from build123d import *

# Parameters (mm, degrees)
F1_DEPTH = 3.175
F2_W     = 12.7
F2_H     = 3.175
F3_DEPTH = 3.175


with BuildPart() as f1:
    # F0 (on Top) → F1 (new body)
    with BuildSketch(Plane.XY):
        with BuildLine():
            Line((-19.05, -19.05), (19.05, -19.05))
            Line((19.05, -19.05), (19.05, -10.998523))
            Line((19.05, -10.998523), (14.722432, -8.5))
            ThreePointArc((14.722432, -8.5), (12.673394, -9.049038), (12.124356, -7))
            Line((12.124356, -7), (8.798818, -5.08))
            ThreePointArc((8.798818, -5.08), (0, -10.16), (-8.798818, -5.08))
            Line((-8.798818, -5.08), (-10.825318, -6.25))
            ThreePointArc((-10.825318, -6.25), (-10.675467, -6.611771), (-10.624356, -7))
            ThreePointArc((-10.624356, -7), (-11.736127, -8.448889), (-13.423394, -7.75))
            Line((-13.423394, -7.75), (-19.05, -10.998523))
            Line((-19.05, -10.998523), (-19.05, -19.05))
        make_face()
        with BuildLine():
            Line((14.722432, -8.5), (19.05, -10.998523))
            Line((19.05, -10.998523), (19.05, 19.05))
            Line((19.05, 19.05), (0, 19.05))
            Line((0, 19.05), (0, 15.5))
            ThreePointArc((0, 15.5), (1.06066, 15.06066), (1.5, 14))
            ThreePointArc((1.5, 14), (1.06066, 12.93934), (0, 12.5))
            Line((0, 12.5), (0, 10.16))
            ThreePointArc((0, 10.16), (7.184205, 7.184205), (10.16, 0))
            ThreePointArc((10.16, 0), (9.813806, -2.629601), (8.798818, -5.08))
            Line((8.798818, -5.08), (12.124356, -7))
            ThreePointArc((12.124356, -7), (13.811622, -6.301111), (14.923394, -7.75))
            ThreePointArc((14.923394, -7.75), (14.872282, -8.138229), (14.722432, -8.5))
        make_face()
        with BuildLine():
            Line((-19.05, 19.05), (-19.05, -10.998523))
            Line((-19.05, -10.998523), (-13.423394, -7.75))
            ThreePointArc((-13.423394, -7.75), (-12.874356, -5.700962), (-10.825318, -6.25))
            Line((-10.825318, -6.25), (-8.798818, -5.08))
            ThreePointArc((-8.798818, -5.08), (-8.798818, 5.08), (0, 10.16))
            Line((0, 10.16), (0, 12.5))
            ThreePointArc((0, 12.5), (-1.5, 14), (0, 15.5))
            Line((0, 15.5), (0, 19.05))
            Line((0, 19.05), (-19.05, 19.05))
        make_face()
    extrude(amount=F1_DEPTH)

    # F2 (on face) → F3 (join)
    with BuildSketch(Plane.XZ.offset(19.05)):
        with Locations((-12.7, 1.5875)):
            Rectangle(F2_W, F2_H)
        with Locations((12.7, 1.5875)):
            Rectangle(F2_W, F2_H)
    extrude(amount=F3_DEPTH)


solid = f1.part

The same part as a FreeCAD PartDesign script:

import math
import FreeCAD as App
import Part
import Sketcher
Q = App.Units.Quantity

doc = App.newDocument("Part")
body = doc.addObject("PartDesign::Body", "Body")

sketch1 = body.newObject("Sketcher::SketchObject", "Sketch")
sketch1.AttachmentSupport = (doc.getObject("XY_Plane"), [""])
sketch1.MapMode = "FlatFace"
sketch1.addGeometry([
    Part.LineSegment(App.Vector(-19.1, -19.1, 0), App.Vector(19.1, -19.1, 0)),
    Part.LineSegment(App.Vector(19.1, -19.1, 0), App.Vector(19.1, 19.1, 0)),
    Part.LineSegment(App.Vector(19.1, 19.1, 0), App.Vector(-19.1, 19.1, 0)),
    Part.LineSegment(App.Vector(-19.1, 19.1, 0), App.Vector(-19.1, -19.1, 0)),
    Part.ArcOfCircle(Part.Circle(App.Vector(0, 14, 0), App.Vector(0, 0, 1), 1.5), math.radians(0), math.radians(90)),
    Part.ArcOfCircle(Part.Circle(App.Vector(0, 14, 0), App.Vector(0, 0, 1), 1.5), math.radians(-90), math.radians(0)),
    Part.ArcOfCircle(Part.Circle(App.Vector(0, 14, 0), App.Vector(0, 0, 1), 1.5), math.radians(90), math.radians(270)),
    Part.ArcOfCircle(Part.Circle(App.Vector(0, 0, 0), App.Vector(0, 0, 1), 10.2), math.radians(0), math.radians(90)),
    Part.ArcOfCircle(Part.Circle(App.Vector(0, 0, 0), App.Vector(0, 0, 1), 10.2), math.radians(-30), math.radians(0)),
    Part.ArcOfCircle(Part.Circle(App.Vector(0, 0, 0), App.Vector(0, 0, 1), 10.2), math.radians(-150), math.radians(-30)),
    Part.ArcOfCircle(Part.Circle(App.Vector(0, 0, 0), App.Vector(0, 0, 1), 10.2), math.radians(90), math.radians(210)),
    Part.ArcOfCircle(Part.Circle(App.Vector(-12.1, -7, 0), App.Vector(0, 0, 1), 1.5), math.radians(0), math.radians(30)),
    Part.ArcOfCircle(Part.Circle(App.Vector(-12.1, -7, 0), App.Vector(0, 0, 1), 1.5), math.radians(-150), math.radians(0)),
    Part.ArcOfCircle(Part.Circle(App.Vector(-12.1, -7, 0), App.Vector(0, 0, 1), 1.5), math.radians(30), math.radians(210)),
    Part.ArcOfCircle(Part.Circle(App.Vector(13.4, -7.8, 0), App.Vector(0, 0, 1), 1.5), math.radians(150), math.radians(330)),
    Part.ArcOfCircle(Part.Circle(App.Vector(13.4, -7.7, 0), App.Vector(0, 0, 1), 1.5), math.radians(0), math.radians(150)),
    Part.ArcOfCircle(Part.Circle(App.Vector(13.4, -7.7, 0), App.Vector(0, 0, 1), 1.5), math.radians(-30), math.radians(0)),
], False)
sketch1.addConstraint([
    Sketcher.Constraint("Coincident", 0, 2, 1, 1),
    Sketcher.Constraint("Coincident", 1, 2, 2, 1),
    Sketcher.Constraint("Coincident", 2, 2, 3, 1),
    Sketcher.Constraint("Coincident", 3, 2, 0, 1),
    Sketcher.Constraint("Tangent", 4, 1, 5, 2),
    Sketcher.Constraint("Tangent", 5, 1, 6, 2),
    Sketcher.Constraint("Tangent", 6, 1, 4, 2),
    Sketcher.Constraint("Tangent", 7, 1, 8, 2),
    Sketcher.Constraint("Tangent", 8, 1, 9, 2),
    Sketcher.Constraint("Tangent", 9, 1, 10, 2),
    Sketcher.Constraint("Tangent", 10, 1, 7, 2),
    Sketcher.Constraint("Coincident", 11, 1, 12, 2),
    Sketcher.Constraint("Tangent", 12, 1, 13, 2),
    Sketcher.Constraint("Coincident", 13, 1, 11, 2),
    Sketcher.Constraint("Tangent", 14, 1, 15, 2),
    Sketcher.Constraint("Coincident", 15, 1, 16, 2),
    Sketcher.Constraint("Coincident", 16, 1, 14, 2),
    Sketcher.Constraint("Horizontal", 0),
    Sketcher.Constraint("Vertical", 1),
    Sketcher.Constraint("Horizontal", 2),
    Sketcher.Constraint("Vertical", 3),
    Sketcher.Constraint("Coincident", 7, 3, -1, 1),
    Sketcher.Constraint("Equal", 7, 9),
    Sketcher.Constraint("Equal", 6, 12),
    Sketcher.Constraint("Equal", 12, 13),
    Sketcher.Constraint("Equal", 13, 14),
    Sketcher.Constraint("Equal", 14, 15),
    Sketcher.Constraint("Symmetric", 0, 2, 2, 2, -1, 1),
    Sketcher.Constraint("PointOnObject", 4, 3, -2),
    Sketcher.Constraint("PointOnObject", 5, 1, -2),
    Sketcher.Constraint("PointOnObject", 6, 1, -2),
    Sketcher.Constraint("PointOnObject", 7, 1, -1),
    Sketcher.Constraint("PointOnObject", 10, 1, -2),
    Sketcher.Constraint("Horizontal", 6, 3, 4, 1),
    Sketcher.Constraint("Horizontal", 8, 1, 9, 1),
    Sketcher.Constraint("Horizontal", 13, 3, 11, 1),
    Sketcher.Constraint("Horizontal", 15, 3, 12, 1),
    Sketcher.Constraint("Horizontal", 11, 1, 14, 1),
    Sketcher.Constraint("Horizontal", 12, 1, 15, 1),
    Sketcher.Constraint("Equal", 2, 1),
    Sketcher.Constraint("Radius", 7, Q("0.4 in")),
    Sketcher.Constraint("DistanceX", 0, 1, 0, 2, Q("1.5 in")),
    Sketcher.Constraint("DistanceY", 8, 1, -1, 1, Q("0.2 in")),
    Sketcher.Constraint("Radius", 4, Q("1.500001 mm")),
    Sketcher.Constraint("Radius", 11, Q("1.499988 mm")),
    Sketcher.Constraint("Radius", 16, Q("1.500016 mm")),
    Sketcher.Constraint("DistanceY", -1, 1, 4, 3, Q("13.999999 mm")),
    Sketcher.Constraint("DistanceY", 12, 3, -1, 1, Q("7.000001 mm")),
    Sketcher.Constraint("DistanceY", 14, 3, -1, 1, Q("7.75 mm")),
    Sketcher.Constraint("DistanceY", 13, 1, -1, 1, Q("6.25 mm")),
    Sketcher.Constraint("DistanceY", 16, 1, -1, 1, Q("8.5 mm")),
    Sketcher.Constraint("DistanceX", 13, 1, 9, 1, Q("2.0265 mm")),
    Sketcher.Constraint("DistanceX", -1, 1, 16, 3, Q("13.423378 mm")),
])
pad1 = body.newObject("PartDesign::Pad", "Pad")
pad1.Profile = sketch1
pad1.Length = Q("0.125 in")

sketch2 = body.newObject("Sketcher::SketchObject", "Sketch001")
sketch2.AttachmentSupport = (doc.getObject("XZ_Plane"), [""])
sketch2.MapMode = "FlatFace"
sketch2.AttachmentOffset = App.Placement(App.Vector(0, 0, 0.75 * 25.4), App.Rotation())
sketch2.addGeometry([
    Part.LineSegment(App.Vector(-19.1, 3.2, 0), App.Vector(-19.1, 0, 0)),
    Part.LineSegment(App.Vector(-19.1, 0, 0), App.Vector(-6.3, 0, 0)),
    Part.LineSegment(App.Vector(-6.3, 0, 0), App.Vector(-6.3, 3.2, 0)),
    Part.LineSegment(App.Vector(-6.3, 3.2, 0), App.Vector(-19.1, 3.2, 0)),
    Part.LineSegment(App.Vector(6.3, 3.2, 0), App.Vector(6.3, 0, 0)),
    Part.LineSegment(App.Vector(6.3, 0, 0), App.Vector(19.1, 0, 0)),
    Part.LineSegment(App.Vector(19.1, 0, 0), App.Vector(19.1, 3.2, 0)),
    Part.LineSegment(App.Vector(19.1, 3.2, 0), App.Vector(6.3, 3.2, 0)),
], False)
sketch2.addConstraint([
    Sketcher.Constraint("Coincident", 0, 2, 1, 1),
    Sketcher.Constraint("Coincident", 1, 2, 2, 1),
    Sketcher.Constraint("Coincident", 2, 2, 3, 1),
    Sketcher.Constraint("Coincident", 3, 2, 0, 1),
    Sketcher.Constraint("Coincident", 4, 2, 5, 1),
    Sketcher.Constraint("Coincident", 5, 2, 6, 1),
    Sketcher.Constraint("Coincident", 6, 2, 7, 1),
    Sketcher.Constraint("Coincident", 7, 2, 4, 1),
    Sketcher.Constraint("Vertical", 0),
    Sketcher.Constraint("Horizontal", 1),
    Sketcher.Constraint("Vertical", 2),
    Sketcher.Constraint("Horizontal", 3),
    Sketcher.Constraint("Vertical", 4),
    Sketcher.Constraint("Horizontal", 5),
    Sketcher.Constraint("Vertical", 6),
    Sketcher.Constraint("Horizontal", 7),
    Sketcher.Constraint("Symmetric", 1, 2, 4, 2, -1, 1),
    Sketcher.Constraint("Symmetric", 0, 2, 5, 2, -2),
    Sketcher.Constraint("Horizontal", 3, 2, 6, 2),
    Sketcher.Constraint("DistanceX", 1, 1, 1, 2, Q("0.5 in")),
    Sketcher.Constraint("DistanceX", 0, 2, 4, 2, Q("1 in")),
    Sketcher.Constraint("DistanceY", 0, 2, 0, 1, Q("0.125 in")),
])
pad2 = body.newObject("PartDesign::Pad", "Pad001")
pad2.Profile = sketch2
pad2.Length = Q("0.125 in")

doc.recompute()
